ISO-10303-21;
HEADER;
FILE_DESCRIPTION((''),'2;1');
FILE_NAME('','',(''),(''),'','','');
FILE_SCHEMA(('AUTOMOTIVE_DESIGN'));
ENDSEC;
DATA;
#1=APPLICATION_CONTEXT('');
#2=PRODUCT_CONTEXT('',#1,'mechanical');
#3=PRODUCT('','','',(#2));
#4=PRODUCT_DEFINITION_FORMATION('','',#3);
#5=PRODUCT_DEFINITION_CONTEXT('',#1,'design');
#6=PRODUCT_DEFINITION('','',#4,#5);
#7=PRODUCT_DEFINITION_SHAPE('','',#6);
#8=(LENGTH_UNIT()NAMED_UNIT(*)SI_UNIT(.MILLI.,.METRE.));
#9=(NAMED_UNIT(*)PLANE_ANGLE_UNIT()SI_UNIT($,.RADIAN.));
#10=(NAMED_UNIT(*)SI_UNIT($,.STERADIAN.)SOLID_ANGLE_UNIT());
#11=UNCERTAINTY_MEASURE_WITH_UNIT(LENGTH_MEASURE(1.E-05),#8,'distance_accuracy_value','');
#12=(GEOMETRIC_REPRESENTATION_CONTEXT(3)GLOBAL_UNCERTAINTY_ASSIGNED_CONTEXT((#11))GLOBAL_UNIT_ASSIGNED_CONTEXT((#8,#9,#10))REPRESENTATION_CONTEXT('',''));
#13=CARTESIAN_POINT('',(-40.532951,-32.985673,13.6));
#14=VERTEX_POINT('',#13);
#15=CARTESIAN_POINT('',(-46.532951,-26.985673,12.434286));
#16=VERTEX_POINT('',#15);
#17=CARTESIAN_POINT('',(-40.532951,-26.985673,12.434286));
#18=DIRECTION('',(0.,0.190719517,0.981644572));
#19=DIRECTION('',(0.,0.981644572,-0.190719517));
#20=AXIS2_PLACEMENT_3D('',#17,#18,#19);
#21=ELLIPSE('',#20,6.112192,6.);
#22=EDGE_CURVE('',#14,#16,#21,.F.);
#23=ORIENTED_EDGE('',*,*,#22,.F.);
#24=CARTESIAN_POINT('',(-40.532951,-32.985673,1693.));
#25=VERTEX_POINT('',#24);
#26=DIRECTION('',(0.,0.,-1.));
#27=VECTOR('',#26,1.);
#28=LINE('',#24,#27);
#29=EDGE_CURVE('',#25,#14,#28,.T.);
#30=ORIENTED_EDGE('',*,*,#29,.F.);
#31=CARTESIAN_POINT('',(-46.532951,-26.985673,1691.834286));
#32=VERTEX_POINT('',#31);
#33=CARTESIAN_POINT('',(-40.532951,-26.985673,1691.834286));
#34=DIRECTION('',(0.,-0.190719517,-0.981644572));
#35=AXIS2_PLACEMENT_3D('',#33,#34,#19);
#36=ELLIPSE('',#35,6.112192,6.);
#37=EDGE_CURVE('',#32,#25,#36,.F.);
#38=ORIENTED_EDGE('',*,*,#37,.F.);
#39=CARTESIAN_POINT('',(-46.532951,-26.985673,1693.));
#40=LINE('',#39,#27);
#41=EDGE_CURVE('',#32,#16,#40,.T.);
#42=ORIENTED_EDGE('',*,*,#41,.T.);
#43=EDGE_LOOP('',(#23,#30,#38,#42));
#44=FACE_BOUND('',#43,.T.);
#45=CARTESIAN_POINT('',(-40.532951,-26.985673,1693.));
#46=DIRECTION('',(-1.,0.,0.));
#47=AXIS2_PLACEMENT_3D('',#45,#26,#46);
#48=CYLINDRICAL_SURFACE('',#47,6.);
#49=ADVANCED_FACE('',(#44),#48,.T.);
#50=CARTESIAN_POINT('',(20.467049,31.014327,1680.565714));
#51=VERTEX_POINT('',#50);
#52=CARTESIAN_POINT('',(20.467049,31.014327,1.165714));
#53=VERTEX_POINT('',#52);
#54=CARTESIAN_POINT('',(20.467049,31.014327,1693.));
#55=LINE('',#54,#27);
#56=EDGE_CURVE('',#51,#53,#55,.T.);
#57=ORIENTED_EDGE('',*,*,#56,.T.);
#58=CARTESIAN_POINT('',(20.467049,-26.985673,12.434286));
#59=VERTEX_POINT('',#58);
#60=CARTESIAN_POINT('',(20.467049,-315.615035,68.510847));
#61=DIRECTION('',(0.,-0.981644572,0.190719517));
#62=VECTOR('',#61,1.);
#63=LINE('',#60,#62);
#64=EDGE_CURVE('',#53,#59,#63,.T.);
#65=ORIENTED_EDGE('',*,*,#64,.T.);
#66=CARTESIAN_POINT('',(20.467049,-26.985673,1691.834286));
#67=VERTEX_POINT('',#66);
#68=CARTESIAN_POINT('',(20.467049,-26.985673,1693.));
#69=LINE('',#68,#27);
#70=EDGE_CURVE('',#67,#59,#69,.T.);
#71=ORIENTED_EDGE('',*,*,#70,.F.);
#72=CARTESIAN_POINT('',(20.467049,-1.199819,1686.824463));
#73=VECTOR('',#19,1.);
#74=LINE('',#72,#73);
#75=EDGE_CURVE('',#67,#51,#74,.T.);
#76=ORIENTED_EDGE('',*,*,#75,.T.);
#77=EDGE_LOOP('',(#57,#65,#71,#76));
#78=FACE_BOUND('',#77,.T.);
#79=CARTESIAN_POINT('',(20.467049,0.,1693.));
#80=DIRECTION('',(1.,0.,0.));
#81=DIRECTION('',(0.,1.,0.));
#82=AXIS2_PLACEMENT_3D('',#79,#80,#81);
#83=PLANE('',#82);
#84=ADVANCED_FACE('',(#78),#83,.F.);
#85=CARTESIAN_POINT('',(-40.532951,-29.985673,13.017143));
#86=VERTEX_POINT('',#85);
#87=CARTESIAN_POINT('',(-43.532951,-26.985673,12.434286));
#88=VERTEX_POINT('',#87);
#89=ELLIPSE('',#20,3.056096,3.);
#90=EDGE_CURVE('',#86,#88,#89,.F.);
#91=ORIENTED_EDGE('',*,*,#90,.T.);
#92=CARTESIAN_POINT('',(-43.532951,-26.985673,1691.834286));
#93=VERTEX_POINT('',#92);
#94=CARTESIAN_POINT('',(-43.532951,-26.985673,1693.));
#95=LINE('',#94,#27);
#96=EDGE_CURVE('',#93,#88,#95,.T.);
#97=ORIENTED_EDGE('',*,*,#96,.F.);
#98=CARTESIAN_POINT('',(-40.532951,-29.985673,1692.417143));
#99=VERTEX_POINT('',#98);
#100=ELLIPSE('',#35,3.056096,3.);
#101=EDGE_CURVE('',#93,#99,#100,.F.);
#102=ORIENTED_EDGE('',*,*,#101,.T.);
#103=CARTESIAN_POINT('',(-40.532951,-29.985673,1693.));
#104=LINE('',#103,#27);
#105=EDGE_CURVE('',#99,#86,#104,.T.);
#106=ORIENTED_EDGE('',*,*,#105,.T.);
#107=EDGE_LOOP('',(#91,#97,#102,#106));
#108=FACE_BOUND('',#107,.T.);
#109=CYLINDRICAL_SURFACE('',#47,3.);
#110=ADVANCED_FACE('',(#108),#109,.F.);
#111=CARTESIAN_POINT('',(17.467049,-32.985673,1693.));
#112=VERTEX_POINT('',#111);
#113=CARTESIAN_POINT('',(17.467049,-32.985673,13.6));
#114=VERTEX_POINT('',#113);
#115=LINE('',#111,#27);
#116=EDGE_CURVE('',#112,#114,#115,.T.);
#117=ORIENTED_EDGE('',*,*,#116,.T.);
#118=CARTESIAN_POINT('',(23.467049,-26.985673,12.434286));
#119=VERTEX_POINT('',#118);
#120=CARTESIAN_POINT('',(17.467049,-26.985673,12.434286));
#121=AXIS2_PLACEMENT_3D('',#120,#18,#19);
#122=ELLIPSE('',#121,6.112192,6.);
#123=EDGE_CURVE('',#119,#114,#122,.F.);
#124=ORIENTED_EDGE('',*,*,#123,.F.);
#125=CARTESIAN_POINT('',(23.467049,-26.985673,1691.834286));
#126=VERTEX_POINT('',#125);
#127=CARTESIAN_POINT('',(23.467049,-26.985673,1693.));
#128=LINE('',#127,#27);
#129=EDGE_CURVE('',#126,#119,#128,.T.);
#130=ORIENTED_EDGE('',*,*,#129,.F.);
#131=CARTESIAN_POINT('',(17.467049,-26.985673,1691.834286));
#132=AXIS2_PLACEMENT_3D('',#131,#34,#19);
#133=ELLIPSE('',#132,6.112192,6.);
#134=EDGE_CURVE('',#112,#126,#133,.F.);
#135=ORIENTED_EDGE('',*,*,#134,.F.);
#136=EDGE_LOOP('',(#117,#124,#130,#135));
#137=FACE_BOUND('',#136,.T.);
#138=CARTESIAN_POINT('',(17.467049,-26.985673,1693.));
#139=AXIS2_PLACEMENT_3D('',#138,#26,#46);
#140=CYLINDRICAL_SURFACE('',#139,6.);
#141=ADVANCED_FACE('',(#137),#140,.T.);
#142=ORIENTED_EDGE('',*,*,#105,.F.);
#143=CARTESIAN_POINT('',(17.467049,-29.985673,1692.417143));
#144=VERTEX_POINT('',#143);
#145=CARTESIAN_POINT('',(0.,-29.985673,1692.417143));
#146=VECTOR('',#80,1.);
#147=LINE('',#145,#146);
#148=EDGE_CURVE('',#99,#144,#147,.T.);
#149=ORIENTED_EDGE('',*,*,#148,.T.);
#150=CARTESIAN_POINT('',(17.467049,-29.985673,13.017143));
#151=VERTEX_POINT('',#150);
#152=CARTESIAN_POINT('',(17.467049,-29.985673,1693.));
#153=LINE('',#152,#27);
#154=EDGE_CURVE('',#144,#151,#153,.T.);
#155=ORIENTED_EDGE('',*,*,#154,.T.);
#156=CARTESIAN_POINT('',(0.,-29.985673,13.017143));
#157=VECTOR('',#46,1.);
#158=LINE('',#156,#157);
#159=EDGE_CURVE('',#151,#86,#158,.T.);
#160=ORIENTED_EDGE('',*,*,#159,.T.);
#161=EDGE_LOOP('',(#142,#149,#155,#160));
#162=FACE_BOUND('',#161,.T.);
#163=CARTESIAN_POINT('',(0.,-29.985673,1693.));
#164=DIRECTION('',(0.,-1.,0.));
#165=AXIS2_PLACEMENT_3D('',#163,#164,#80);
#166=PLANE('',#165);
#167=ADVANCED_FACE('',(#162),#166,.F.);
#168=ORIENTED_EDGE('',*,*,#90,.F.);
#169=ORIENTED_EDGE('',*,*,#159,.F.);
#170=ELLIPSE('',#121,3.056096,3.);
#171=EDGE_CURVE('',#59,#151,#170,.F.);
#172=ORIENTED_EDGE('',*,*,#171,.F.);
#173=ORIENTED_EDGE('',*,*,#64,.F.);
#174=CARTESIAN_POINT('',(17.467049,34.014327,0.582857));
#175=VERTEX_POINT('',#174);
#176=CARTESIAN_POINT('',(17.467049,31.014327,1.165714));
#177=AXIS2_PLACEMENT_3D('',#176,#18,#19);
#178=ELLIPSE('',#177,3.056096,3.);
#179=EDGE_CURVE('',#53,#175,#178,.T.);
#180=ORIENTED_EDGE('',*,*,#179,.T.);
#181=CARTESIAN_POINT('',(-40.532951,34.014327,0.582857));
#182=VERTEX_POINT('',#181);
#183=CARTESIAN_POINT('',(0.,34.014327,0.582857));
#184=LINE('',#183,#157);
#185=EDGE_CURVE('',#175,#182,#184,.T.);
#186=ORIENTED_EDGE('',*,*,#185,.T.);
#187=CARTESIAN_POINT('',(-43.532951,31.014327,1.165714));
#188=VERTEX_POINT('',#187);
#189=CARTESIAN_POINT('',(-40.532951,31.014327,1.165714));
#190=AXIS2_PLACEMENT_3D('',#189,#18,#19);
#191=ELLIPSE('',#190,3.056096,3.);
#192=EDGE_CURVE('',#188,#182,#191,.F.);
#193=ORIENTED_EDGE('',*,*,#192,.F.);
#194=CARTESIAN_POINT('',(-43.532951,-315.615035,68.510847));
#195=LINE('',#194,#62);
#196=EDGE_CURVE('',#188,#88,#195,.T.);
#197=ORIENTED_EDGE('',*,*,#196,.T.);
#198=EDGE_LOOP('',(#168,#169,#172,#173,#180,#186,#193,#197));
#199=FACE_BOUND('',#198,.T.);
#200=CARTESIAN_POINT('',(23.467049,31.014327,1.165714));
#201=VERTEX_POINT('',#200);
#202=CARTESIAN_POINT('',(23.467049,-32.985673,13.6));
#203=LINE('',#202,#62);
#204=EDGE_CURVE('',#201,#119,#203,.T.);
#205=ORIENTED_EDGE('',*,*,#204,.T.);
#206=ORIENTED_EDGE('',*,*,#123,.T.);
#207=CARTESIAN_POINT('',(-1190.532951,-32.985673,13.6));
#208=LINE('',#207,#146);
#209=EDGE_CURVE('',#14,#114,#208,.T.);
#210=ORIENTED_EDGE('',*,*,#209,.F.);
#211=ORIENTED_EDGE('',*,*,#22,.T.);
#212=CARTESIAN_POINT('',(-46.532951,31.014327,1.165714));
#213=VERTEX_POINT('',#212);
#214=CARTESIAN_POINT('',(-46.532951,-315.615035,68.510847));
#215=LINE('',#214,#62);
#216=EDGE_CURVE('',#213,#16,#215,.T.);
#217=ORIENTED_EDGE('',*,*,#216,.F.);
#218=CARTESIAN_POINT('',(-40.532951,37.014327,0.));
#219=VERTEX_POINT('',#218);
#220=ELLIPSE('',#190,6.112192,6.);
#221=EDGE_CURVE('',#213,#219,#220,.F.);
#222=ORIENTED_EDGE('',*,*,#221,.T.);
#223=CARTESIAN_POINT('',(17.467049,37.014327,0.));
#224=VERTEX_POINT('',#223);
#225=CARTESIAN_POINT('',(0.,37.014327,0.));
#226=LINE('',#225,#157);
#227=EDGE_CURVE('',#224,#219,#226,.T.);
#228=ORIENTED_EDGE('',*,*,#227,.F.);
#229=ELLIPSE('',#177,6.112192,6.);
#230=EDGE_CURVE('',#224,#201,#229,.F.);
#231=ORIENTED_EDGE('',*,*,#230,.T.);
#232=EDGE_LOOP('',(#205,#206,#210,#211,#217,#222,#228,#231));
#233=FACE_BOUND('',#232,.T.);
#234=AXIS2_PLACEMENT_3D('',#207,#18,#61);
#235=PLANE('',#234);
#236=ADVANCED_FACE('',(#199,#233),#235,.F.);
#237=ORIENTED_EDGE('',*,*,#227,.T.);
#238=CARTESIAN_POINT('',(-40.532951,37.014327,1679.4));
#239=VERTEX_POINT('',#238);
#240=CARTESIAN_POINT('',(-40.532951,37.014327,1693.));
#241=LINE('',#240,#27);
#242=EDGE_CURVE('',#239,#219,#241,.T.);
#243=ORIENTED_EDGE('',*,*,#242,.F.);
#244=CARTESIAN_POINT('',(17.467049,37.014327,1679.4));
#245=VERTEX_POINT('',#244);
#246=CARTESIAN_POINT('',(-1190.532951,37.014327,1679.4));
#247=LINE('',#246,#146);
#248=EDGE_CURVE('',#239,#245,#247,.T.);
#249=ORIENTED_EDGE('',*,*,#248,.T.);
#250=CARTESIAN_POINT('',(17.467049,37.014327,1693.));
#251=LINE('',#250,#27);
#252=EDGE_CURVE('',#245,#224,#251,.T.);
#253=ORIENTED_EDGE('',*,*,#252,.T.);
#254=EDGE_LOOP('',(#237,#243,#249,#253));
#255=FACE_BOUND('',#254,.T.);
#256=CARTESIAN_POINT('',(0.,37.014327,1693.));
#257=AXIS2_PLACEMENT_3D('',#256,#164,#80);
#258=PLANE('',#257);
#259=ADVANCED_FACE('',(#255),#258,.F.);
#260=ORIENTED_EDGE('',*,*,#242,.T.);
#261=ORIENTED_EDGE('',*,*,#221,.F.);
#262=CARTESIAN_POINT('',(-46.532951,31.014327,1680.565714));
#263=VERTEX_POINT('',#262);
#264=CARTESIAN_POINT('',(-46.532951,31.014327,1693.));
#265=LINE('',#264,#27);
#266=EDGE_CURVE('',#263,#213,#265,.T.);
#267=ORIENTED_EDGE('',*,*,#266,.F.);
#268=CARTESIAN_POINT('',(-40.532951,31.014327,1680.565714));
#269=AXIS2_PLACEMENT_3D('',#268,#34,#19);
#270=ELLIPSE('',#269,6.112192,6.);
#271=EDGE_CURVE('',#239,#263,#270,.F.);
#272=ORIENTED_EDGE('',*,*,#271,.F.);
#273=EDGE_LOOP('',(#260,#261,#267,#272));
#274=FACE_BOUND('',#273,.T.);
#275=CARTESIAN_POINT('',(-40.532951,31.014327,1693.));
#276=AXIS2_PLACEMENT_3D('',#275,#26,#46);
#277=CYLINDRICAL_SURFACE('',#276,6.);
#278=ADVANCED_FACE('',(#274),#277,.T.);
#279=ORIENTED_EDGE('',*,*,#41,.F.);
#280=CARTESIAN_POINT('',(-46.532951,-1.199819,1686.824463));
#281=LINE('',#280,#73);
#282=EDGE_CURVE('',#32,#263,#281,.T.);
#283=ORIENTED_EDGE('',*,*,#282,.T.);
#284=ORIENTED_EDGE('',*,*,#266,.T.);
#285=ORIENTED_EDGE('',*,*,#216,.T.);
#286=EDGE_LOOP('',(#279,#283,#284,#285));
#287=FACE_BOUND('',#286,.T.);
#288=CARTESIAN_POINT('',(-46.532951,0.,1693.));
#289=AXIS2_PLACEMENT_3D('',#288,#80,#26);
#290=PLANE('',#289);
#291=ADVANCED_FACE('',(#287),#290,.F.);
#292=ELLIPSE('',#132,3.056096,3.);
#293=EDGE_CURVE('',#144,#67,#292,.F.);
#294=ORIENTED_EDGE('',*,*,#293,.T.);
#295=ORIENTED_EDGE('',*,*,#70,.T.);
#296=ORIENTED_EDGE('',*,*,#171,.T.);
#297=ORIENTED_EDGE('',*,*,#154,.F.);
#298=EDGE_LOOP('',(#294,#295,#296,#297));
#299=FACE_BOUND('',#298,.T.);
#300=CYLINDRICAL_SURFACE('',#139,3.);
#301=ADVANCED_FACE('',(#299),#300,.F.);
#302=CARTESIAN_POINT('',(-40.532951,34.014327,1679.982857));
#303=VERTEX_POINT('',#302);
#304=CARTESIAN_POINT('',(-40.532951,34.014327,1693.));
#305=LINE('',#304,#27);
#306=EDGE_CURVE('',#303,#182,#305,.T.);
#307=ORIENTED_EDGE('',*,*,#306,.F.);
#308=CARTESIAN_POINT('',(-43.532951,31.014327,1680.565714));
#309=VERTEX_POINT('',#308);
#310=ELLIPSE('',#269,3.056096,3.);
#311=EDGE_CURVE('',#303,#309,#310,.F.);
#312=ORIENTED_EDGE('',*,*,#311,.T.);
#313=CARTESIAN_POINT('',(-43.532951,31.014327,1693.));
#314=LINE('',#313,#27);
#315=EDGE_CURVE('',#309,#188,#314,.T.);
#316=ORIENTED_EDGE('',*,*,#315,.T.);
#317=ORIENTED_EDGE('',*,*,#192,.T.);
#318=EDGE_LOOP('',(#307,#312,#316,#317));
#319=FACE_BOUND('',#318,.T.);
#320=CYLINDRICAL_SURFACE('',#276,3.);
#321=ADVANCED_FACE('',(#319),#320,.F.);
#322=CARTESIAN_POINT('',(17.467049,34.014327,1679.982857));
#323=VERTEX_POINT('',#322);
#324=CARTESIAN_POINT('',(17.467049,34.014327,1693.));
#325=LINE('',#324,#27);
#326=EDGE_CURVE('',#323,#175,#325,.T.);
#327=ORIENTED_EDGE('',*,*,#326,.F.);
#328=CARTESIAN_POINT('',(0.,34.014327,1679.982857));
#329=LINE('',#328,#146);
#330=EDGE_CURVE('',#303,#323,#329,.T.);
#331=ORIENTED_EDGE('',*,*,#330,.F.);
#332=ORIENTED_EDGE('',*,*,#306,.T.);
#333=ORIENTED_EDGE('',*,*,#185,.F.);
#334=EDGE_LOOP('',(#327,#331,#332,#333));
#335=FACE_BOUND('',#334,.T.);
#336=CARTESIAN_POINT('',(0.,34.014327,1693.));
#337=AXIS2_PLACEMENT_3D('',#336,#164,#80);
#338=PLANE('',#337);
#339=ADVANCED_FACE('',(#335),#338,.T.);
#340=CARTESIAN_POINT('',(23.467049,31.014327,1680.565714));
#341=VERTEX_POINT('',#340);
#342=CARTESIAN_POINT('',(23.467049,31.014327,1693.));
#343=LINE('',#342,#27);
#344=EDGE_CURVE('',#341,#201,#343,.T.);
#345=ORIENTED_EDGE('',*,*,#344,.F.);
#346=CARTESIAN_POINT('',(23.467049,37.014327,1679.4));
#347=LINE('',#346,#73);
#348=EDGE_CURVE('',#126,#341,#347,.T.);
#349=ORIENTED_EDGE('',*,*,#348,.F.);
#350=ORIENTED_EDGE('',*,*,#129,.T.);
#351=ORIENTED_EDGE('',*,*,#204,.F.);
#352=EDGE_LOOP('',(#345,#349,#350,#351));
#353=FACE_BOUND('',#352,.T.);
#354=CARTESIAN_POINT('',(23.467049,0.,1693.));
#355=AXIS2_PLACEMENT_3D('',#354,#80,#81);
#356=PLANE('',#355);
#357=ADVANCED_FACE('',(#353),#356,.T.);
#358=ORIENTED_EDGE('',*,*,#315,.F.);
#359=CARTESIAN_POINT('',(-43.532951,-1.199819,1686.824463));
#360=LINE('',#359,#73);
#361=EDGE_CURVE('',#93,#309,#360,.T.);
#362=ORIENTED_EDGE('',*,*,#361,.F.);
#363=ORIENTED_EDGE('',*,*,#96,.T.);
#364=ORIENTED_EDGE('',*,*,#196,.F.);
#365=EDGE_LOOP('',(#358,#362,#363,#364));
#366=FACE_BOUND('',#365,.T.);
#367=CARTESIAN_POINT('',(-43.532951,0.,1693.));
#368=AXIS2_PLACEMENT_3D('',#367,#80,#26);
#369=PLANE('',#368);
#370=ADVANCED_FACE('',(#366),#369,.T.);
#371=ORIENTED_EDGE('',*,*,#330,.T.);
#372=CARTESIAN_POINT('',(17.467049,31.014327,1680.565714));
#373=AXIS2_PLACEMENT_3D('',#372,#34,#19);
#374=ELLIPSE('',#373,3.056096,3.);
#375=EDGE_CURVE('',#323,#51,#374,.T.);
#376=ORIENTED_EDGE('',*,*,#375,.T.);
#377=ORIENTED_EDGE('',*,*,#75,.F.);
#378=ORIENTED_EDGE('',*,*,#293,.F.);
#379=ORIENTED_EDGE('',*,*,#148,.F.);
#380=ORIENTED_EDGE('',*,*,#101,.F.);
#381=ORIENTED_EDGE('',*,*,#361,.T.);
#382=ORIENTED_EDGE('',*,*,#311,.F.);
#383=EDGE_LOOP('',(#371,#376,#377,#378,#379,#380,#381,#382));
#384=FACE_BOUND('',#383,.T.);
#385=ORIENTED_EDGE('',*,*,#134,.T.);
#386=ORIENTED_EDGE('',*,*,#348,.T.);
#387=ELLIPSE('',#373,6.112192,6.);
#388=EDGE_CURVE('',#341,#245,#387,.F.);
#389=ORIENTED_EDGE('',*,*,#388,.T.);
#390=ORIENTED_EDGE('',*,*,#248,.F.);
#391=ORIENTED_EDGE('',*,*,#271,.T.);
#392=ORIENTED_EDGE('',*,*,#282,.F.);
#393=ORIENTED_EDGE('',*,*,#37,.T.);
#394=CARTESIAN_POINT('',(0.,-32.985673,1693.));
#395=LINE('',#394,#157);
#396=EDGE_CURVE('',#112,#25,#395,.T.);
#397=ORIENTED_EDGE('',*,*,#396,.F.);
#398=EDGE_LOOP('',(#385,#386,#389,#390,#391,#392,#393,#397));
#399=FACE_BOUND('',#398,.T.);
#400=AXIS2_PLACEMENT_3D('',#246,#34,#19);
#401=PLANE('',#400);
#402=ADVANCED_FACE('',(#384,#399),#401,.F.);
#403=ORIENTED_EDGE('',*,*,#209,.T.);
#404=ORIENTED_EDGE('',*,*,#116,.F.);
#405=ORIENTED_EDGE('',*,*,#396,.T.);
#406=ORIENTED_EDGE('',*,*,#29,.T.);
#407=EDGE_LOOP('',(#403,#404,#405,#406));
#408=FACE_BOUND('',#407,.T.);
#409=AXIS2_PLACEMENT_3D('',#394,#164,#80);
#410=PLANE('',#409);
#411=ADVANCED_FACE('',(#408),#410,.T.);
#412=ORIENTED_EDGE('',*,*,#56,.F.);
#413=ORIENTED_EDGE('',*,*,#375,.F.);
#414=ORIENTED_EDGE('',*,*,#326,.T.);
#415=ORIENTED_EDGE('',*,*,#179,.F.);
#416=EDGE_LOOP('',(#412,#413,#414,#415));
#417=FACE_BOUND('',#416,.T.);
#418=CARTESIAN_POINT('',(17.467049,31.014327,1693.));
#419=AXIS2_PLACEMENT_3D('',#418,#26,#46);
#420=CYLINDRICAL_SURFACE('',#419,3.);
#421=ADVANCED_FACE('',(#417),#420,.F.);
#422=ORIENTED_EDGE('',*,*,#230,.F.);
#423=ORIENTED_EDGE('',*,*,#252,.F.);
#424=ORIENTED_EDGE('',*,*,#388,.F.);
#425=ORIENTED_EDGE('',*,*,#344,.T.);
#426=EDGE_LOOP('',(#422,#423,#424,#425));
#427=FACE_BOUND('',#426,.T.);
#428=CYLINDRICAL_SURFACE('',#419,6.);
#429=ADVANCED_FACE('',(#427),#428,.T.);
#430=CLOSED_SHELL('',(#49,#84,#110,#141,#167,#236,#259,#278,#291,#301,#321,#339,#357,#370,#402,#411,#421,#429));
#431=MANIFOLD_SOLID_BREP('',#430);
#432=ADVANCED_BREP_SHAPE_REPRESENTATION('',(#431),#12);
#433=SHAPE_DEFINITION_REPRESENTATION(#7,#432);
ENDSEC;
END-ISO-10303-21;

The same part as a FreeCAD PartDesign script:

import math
import FreeCAD as App
import Part
import Sketcher


def add_polygon(sketch, points):
    """Adds a closed chain of lines whose ends are joined by coincident constraints."""
    first, n = sketch.GeometryCount, len(points)
    for a, b in zip(points, points[1:] + points[:1]):
        sketch.addGeometry(Part.LineSegment(App.Vector(*a, 0), App.Vector(*b, 0)), False)
    for i in range(n):
        sketch.addConstraint(Sketcher.Constraint("Coincident", first + i, 2, first + (i + 1) % n, 1))

doc = App.newDocument("Part")
body = doc.addObject("PartDesign::Body", "Body")

# Sketch on XY plane
sketch1 = body.newObject("Sketcher::SketchObject", "Sketch")
sketch1.AttachmentSupport = (doc.getObject("XY_Plane"), [""])
sketch1.MapMode = "FlatFace"
sketch1.addGeometry([
    Part.LineSegment(App.Vector(17.5, 37, 0), App.Vector(-40.5, 37, 0)),  # 0
    Part.ArcOfCircle(Part.Circle(App.Vector(-40.5, 31, 0), App.Vector(0, 0, 1), 6), math.radians(90), math.radians(180)),  # 1
    Part.LineSegment(App.Vector(-46.5, 31, 0), App.Vector(-46.5, -27, 0)),  # 2
    Part.ArcOfCircle(Part.Circle(App.Vector(-40.5, -27, 0), App.Vector(0, 0, 1), 6), math.radians(180), math.radians(270)),  # 3
    Part.LineSegment(App.Vector(-40.5, -33, 0), App.Vector(17.5, -33, 0)),  # 4
    Part.ArcOfCircle(Part.Circle(App.Vector(17.5, -27, 0), App.Vector(0, 0, 1), 6), math.radians(-90), math.radians(0)),  # 5
    Part.LineSegment(App.Vector(23.5, -27, 0), App.Vector(23.5, 31, 0)),  # 6
    Part.ArcOfCircle(Part.Circle(App.Vector(17.5, 31, 0), App.Vector(0, 0, 1), 6), math.radians(0), math.radians(90)),  # 7
    Part.LineSegment(App.Vector(-40.5, 34, 0), App.Vector(17.5, 34, 0)),  # 8
    Part.ArcOfCircle(Part.Circle(App.Vector(17.5, 31, 0), App.Vector(0, 0, 1), 3), math.radians(0), math.radians(90)),  # 9
    Part.LineSegment(App.Vector(20.5, 31, 0), App.Vector(20.5, -27, 0)),  # 10
    Part.ArcOfCircle(Part.Circle(App.Vector(17.5, -27, 0), App.Vector(0, 0, 1), 3), math.radians(-90), math.radians(0)),  # 11
    Part.LineSegment(App.Vector(17.5, -30, 0), App.Vector(-40.5, -30, 0)),  # 12
    Part.ArcOfCircle(Part.Circle(App.Vector(-40.5, -27, 0), App.Vector(0, 0, 1), 3), math.radians(180), math.radians(270)),  # 13
    Part.LineSegment(App.Vector(-43.5, -27, 0), App.Vector(-43.5, 31, 0)),  # 14
    Part.ArcOfCircle(Part.Circle(App.Vector(-40.5, 31, 0), App.Vector(0, 0, 1), 3), math.radians(90), math.radians(180)),  # 15
], False)
sketch1.addConstraint([
    Sketcher.Constraint("Tangent", 0, 2, 1, 1),
    Sketcher.Constraint("Tangent", 1, 2, 2, 1),
    Sketcher.Constraint("Tangent", 2, 2, 3, 1),
    Sketcher.Constraint("Tangent", 3, 2, 4, 1),
    Sketcher.Constraint("Tangent", 4, 2, 5, 1),
    Sketcher.Constraint("Tangent", 5, 2, 6, 1),
    Sketcher.Constraint("Tangent", 6, 2, 7, 1),
    Sketcher.Constraint("Tangent", 7, 2, 0, 1),
    Sketcher.Constraint("Tangent", 8, 2, 9, 2),
    Sketcher.Constraint("Tangent", 9, 1, 10, 1),
    Sketcher.Constraint("Tangent", 10, 2, 11, 2),
    Sketcher.Constraint("Tangent", 11, 1, 12, 1),
    Sketcher.Constraint("Tangent", 12, 2, 13, 2),
    Sketcher.Constraint("Tangent", 13, 1, 14, 1),
    Sketcher.Constraint("Tangent", 14, 2, 15, 2),
    Sketcher.Constraint("Tangent", 15, 1, 8, 1),
    Sketcher.Constraint("Horizontal", 0),
    Sketcher.Constraint("Vertical", 2),
    Sketcher.Constraint("Horizontal", 4),
    Sketcher.Constraint("Vertical", 6),
    Sketcher.Constraint("Horizontal", 8),
    Sketcher.Constraint("Vertical", 10),
    Sketcher.Constraint("Horizontal", 12),
    Sketcher.Constraint("Vertical", 14),
    Sketcher.Constraint("Coincident", 9, 3, 7, 3),
    Sketcher.Constraint("Coincident", 11, 3, 5, 3),
    Sketcher.Constraint("Coincident", 13, 3, 3, 3),
    Sketcher.Constraint("Equal", 1, 3),
    Sketcher.Constraint("Equal", 3, 5),
    Sketcher.Constraint("Equal", 5, 7),
    Sketcher.Constraint("Equal", 13, 15),
    Sketcher.Constraint("Equal", 12, 2),
    Sketcher.Constraint("Radius", 1, 6.0),
    Sketcher.Constraint("Radius", 9, 3.0),
    Sketcher.Constraint("DistanceX", 0, 2, 0, 1, 58.0),
    Sketcher.Constraint("DistanceX", 1, 3, -1, 1, 40.532951),
    Sketcher.Constraint("DistanceY", -1, 1, 1, 3, 31.014327),
])
pad1 = body.newObject("PartDesign::Pad", "Pad")
pad1.Profile = sketch1
pad1.Length = 1693

# Sketch on YZ plane
sketch2 = body.newObject("Sketcher::SketchObject", "Sketch001")
sketch2.AttachmentSupport = (doc.getObject("YZ_Plane"), [""])
sketch2.MapMode = "FlatFace"
sketch2.AttachmentOffset = App.Placement(App.Vector(0, 0, 23.467049), App.Rotation())
add_polygon(sketch2, [(-33, 14), (-33, 0), (37, 0)])  # lines 0-2
add_polygon(sketch2, [(37, 1679), (37, 1693), (-33, 1693)])  # lines 3-5
sketch2.addConstraint([
    Sketcher.Constraint("Vertical", 0),
    Sketcher.Constraint("Horizontal", 1),
    Sketcher.Constraint("Vertical", 3),
    Sketcher.Constraint("Horizontal", 4),
    Sketcher.Constraint("PointOnObject", 0, 2, -1),
    Sketcher.Constraint("Parallel", 2, 5),
    Sketcher.Constraint("Vertical", 1, 2, 3, 2),
    Sketcher.Constraint("Vertical", 2, 2, 4, 2),
    Sketcher.Constraint("DistanceX", 1, 1, 1, 2, 70.0),
    Sketcher.Constraint("DistanceY", 0, 2, 0, 1, 13.6),
    Sketcher.Constraint("DistanceY", -1, 1, 3, 2, 1693.0),
    Sketcher.Constraint("DistanceX", 0, 2, -1, 1, 32.985673),
])
pocket1 = body.newObject("PartDesign::Pocket", "Pocket")
pocket1.Profile = sketch2
pocket1.Length = 1214

doc.recompute()
